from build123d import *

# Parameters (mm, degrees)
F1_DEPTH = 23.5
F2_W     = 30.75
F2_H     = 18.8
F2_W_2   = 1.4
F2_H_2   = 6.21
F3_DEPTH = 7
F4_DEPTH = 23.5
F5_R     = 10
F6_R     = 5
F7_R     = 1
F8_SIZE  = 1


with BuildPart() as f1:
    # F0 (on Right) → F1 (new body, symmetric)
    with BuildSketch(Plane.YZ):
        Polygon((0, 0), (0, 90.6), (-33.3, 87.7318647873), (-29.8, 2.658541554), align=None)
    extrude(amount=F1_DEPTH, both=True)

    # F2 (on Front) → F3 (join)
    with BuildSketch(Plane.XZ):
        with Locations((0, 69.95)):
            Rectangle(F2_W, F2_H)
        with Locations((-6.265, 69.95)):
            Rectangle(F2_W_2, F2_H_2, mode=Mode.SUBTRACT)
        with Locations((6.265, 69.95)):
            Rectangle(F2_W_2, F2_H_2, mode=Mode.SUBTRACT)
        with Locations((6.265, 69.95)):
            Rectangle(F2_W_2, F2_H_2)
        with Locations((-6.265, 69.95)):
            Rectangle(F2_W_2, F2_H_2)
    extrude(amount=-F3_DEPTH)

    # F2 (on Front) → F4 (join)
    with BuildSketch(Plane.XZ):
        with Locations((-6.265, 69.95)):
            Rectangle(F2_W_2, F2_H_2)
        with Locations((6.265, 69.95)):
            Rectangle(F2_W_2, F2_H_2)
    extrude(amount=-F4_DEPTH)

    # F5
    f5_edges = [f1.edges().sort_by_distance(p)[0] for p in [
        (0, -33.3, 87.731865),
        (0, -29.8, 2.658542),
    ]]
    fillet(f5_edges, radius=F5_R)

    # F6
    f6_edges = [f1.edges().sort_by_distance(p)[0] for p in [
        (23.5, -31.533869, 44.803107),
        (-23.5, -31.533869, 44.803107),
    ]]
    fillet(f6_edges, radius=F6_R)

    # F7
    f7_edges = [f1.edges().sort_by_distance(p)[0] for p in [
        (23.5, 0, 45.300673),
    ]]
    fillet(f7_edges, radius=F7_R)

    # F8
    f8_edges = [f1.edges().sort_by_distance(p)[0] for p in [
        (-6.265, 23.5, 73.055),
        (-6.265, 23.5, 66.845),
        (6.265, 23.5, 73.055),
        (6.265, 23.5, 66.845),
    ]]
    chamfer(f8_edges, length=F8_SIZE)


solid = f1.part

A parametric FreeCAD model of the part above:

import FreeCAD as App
import Part
import Sketcher
from FreeCAD import Vector
Q = App.Units.Quantity


def edges_at(feature, points):
    """Names of the edges that pass closest to the given points."""
    edges = feature.Shape.Edges
    near = lambda p: min(range(len(edges)), key=lambda i: edges[i].distToShape(Part.Vertex(*p))[0])
    return sorted({f"Edge{near(p) + 1}" for p in points})

doc = App.newDocument("Part")
body = doc.addObject("PartDesign::Body", "Body")

sketch1 = body.newObject("Sketcher::SketchObject", "Sketch")
sketch1.AttachmentSupport = (doc.getObject("YZ_Plane"), [""])
sketch1.MapMode = "FlatFace"
sketch1.addGeometry(Part.LineSegment(Vector(0, 0, 0), Vector(0, 91, 0)), False)
sketch1.addGeometry(Part.LineSegment(Vector(0, 91, 0), Vector(-33, 88, 0)), False)
sketch1.addGeometry(Part.LineSegment(Vector(-33, 88, 0), Vector(-30, 3, 0)), False)
sketch1.addGeometry(Part.LineSegment(Vector(-30, 3, 0), Vector(0, 0, 0)), False)
sketch1.addConstraint(Sketcher.Constraint("Coincident", 0, 2, 1, 1))
sketch1.addConstraint(Sketcher.Constraint("Coincident", 1, 2, 2, 1))
sketch1.addConstraint(Sketcher.Constraint("Coincident", 2, 2, 3, 1))
sketch1.addConstraint(Sketcher.Constraint("Coincident", 3, 2, 0, 1))
sketch1.addConstraint(Sketcher.Constraint("Vertical", 0))
sketch1.addConstraint(Sketcher.Constraint("Coincident", 3, 2, -1, 1))
sketch1.addConstraint(Sketcher.Constraint("DistanceY", 0, 1, 0, 2, Q("90.6 mm")))
sketch1.addConstraint(Sketcher.Constraint("DistanceX", 1, 2, -1, 1, Q("33.3 mm")))
sketch1.addConstraint(Sketcher.Constraint("DistanceX", 2, 2, -1, 1, Q("29.8 mm")))
sketch1.addConstraint(Sketcher.Constraint("Distance", 1, Q("33.423288 mm")))
sketch1.addConstraint(Sketcher.Constraint("Distance", 2, Q("85.14529 mm")))
pad1 = body.newObject("PartDesign::Pad", "Pad")
pad1.Profile = sketch1
pad1.Length = 47
pad1.Midplane = True

sketch2 = body.newObject("Sketcher::SketchObject", "Sketch001")
sketch2.AttachmentSupport = (doc.getObject("XZ_Plane"), [""])
sketch2.MapMode = "FlatFace"
sketch2.addGeometry(Part.LineSegment(Vector(-15, 79, 0), Vector(-15, 61, 0)), False)
sketch2.addGeometry(Part.LineSegment(Vector(-15, 61, 0), Vector(15, 61, 0)), False)
sketch2.addGeometry(Part.LineSegment(Vector(15, 61, 0), Vector(15, 79, 0)), False)
sketch2.addGeometry(Part.LineSegment(Vector(15, 79, 0), Vector(-15, 79, 0)), False)
sketch2.addConstraint(Sketcher.Constraint("Coincident", 0, 2, 1, 1))
sketch2.addConstraint(Sketcher.Constraint("Coincident", 1, 2, 2, 1))
sketch2.addConstraint(Sketcher.Constraint("Coincident", 2, 2, 3, 1))
sketch2.addConstraint(Sketcher.Constraint("Coincident", 3, 2, 0, 1))
sketch2.addConstraint(Sketcher.Constraint("Vertical", 0))
sketch2.addConstraint(Sketcher.Constraint("Horizontal", 1))
sketch2.addConstraint(Sketcher.Constraint("Vertical", 2))
sketch2.addConstraint(Sketcher.Constraint("Horizontal", 3))
sketch2.addConstraint(Sketcher.Constraint("DistanceY", 0, 2, 0, 1, Q("18.8 mm")))
sketch2.addConstraint(Sketcher.Constraint("DistanceX", 1, 1, 1, 2, Q("30.75 mm")))
sketch2.addConstraint(Sketcher.Constraint("DistanceY", -1, 1, 0, 2, Q("60.55 mm")))
sketch2.addConstraint(Sketcher.Constraint("DistanceX", 0, 2, -1, 1, Q("15.375 mm")))
pad2 = body.newObject("PartDesign::Pad", "Pad001")
pad2.Profile = sketch2
pad2.Length = 7
pad2.Reversed = True

sketch3 = body.newObject("Sketcher::SketchObject", "Sketch002")
sketch3.AttachmentSupport = (doc.getObject("XZ_Plane"), [""])
sketch3.MapMode = "FlatFace"
sketch3.addGeometry(Part.LineSegment(Vector(-7, 73.1, 0), Vector(-7, 66.8, 0)), False)
sketch3.addGeometry(Part.LineSegment(Vector(-7, 66.8, 0), Vector(-5.6, 66.8, 0)), False)
sketch3.addGeometry(Part.LineSegment(Vector(-5.6, 66.8, 0), Vector(-5.6, 73.1, 0)), False)
sketch3.addGeometry(Part.LineSegment(Vector(-5.6, 73.1, 0), Vector(-7, 73.1, 0)), False)
sketch3.addGeometry(Part.LineSegment(Vector(5.6, 73.1, 0), Vector(5.6, 66.8, 0)), False)
sketch3.addGeometry(Part.LineSegment(Vector(5.6, 66.8, 0), Vector(7, 66.8, 0)), False)
sketch3.addGeometry(Part.LineSegment(Vector(7, 66.8, 0), Vector(7, 73.1, 0)), False)
sketch3.addGeometry(Part.LineSegment(Vector(7, 73.1, 0), Vector(5.6, 73.1, 0)), False)
sketch3.addConstraint(Sketcher.Constraint("Coincident", 0, 2, 1, 1))
sketch3.addConstraint(Sketcher.Constraint("Coincident", 1, 2, 2, 1))
sketch3.addConstraint(Sketcher.Constraint("Coincident", 2, 2, 3, 1))
sketch3.addConstraint(Sketcher.Constraint("Coincident", 3, 2, 0, 1))
sketch3.addConstraint(Sketcher.Constraint("Coincident", 4, 2, 5, 1))
sketch3.addConstraint(Sketcher.Constraint("Coincident", 5, 2, 6, 1))
sketch3.addConstraint(Sketcher.Constraint("Coincident", 6, 2, 7, 1))
sketch3.addConstraint(Sketcher.Constraint("Coincident", 7, 2, 4, 1))
sketch3.addConstraint(Sketcher.Constraint("Vertical", 0))
sketch3.addConstraint(Sketcher.Constraint("Horizontal", 1))
sketch3.addConstraint(Sketcher.Constraint("Vertical", 2))
sketch3.addConstraint(Sketcher.Constraint("Horizontal", 3))
sketch3.addConstraint(Sketcher.Constraint("Vertical", 4))
sketch3.addConstraint(Sketcher.Constraint("Horizontal", 5))
sketch3.addConstraint(Sketcher.Constraint("Vertical", 6))
sketch3.addConstraint(Sketcher.Constraint("Horizontal", 7))
sketch3.addConstraint(Sketcher.Constraint("Symmetric", 1, 2, 4, 2, -2))
sketch3.addConstraint(Sketcher.Constraint("Symmetric", 3, 2, 6, 2, -2))
sketch3.addConstraint(Sketcher.Constraint("DistanceX", 1, 1, 1, 2, Q("1.4 mm")))
sketch3.addConstraint(Sketcher.Constraint("DistanceY", 0, 2, 0, 1, Q("6.21 mm")))
sketch3.addConstraint(Sketcher.Constraint("DistanceX", 1, 2, 4, 2, Q("11.13 mm")))
sketch3.addConstraint(Sketcher.Constraint("DistanceY", -1, 1, 0, 2, Q("66.845 mm")))
pad3 = body.newObject("PartDesign::Pad", "Pad002")
pad3.Profile = sketch3
pad3.Length = 23.5
pad3.Reversed = True
doc.recompute()

fillet = body.newObject("PartDesign::Fillet", "Fillet")
fillet.Base = (pad3, edges_at(pad3, [(0, -33.3, 87.732), (0, -29.8, 2.659)]))
fillet.Radius = 10
doc.recompute()

fillet2 = body.newObject("PartDesign::Fillet", "Fillet001")
fillet2.Base = (fillet, edges_at(fillet, [(23.5, -31.534, 44.803), (-23.5, -31.534, 44.803)]))
fillet2.Radius = 5
doc.recompute()

fillet3 = body.newObject("PartDesign::Fillet", "Fillet002")
fillet3.Base = (fillet2, edges_at(fillet2, [(23.5, 0, 45.301)]))
fillet3.Radius = 1
doc.recompute()

chamfer = body.newObject("PartDesign::Chamfer", "Chamfer")
chamfer.Base = (fillet3, edges_at(fillet3, [
    (-6.265, 23.5, 73.055),
    (-6.265, 23.5, 66.845),
    (6.265, 23.5, 73.055),
    (6.265, 23.5, 66.845),
]))
chamfer.Size = 1

doc.recompute()
